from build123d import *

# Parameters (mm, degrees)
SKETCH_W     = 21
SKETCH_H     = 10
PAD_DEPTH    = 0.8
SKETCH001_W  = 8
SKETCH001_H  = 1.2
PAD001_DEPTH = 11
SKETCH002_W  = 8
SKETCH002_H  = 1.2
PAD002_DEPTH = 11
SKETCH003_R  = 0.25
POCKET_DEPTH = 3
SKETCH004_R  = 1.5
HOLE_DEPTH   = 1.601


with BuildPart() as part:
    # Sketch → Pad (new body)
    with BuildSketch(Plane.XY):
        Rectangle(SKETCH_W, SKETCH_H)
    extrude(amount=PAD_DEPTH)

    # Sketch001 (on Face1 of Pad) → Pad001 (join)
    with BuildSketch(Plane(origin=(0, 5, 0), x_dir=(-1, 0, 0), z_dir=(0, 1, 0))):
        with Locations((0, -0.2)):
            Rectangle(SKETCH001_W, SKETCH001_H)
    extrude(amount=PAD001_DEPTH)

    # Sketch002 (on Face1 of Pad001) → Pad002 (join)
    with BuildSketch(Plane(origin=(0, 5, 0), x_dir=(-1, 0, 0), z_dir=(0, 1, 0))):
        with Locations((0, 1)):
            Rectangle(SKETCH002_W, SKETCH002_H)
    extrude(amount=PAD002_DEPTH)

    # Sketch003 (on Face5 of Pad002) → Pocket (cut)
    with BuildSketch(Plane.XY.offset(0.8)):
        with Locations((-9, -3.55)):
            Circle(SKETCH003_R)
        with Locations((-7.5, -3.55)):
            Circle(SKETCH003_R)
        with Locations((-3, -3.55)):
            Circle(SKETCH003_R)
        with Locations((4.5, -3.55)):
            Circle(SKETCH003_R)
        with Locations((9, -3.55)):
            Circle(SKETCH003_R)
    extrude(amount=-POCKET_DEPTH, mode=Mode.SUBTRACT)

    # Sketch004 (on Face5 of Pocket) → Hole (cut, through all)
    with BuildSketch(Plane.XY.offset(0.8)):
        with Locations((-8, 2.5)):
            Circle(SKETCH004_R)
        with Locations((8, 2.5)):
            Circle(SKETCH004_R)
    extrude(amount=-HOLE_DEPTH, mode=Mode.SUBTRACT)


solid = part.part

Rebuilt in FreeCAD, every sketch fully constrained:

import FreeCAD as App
import Part
import Sketcher

V = App.Vector
Q = App.Units.Quantity


def add_polygon(sketch, points):
    """Adds a closed chain of lines whose ends are joined by coincident constraints."""
    first, n = sketch.GeometryCount, len(points)
    for a, b in zip(points, points[1:] + points[:1]):
        sketch.addGeometry(Part.LineSegment(App.Vector(*a, 0), App.Vector(*b, 0)), False)
    for i in range(n):
        sketch.addConstraint(Sketcher.Constraint("Coincident", first + i, 2, first + (i + 1) % n, 1))

doc = App.newDocument("Part")
body = doc.addObject("PartDesign::Body", "Body")

# Sketch on XY plane
sketch1 = body.newObject("Sketcher::SketchObject", "Sketch")
sketch1.AttachmentSupport = (doc.getObject("XY_Plane"), [""])
sketch1.MapMode = "FlatFace"
add_polygon(sketch1, [(-10, 5), (-10, -5), (10, -5), (10, 5)])  # lines 0-3
sketch1.addConstraint([
    Sketcher.Constraint("Vertical", 0),
    Sketcher.Constraint("Horizontal", 1),
    Sketcher.Constraint("Vertical", 2),
    Sketcher.Constraint("Horizontal", 3),
    Sketcher.Constraint("Symmetric", 0, 2, 2, 2, -1, 1),
    Sketcher.Constraint("DistanceX", 1, 1, 1, 2, Q("21 mm")),
    Sketcher.Constraint("DistanceY", 0, 2, 0, 1, Q("10 mm")),
])
pad1 = body.newObject("PartDesign::Pad", "Pad")
pad1.Profile = sketch1
pad1.Length = 0.8

# Sketch on XZ plane
sketch2 = body.newObject("Sketcher::SketchObject", "Sketch001")
sketch2.AttachmentSupport = (doc.getObject("XZ_Plane"), [""])
sketch2.MapMode = "FlatFace"
sketch2.AttachmentOffset = App.Placement(V(0, 0, -5), App.Rotation())
add_polygon(sketch2, [(4, 0.4), (4, -0.8), (-4, -0.8), (-4, 0.4)])  # lines 0-3
sketch2.addConstraint([
    Sketcher.Constraint("Vertical", 0),
    Sketcher.Constraint("Horizontal", 1),
    Sketcher.Constraint("Vertical", 2),
    Sketcher.Constraint("Horizontal", 3),
    Sketcher.Constraint("DistanceX", 1, 2, 1, 1, Q("8 mm")),
    Sketcher.Constraint("DistanceY", 0, 2, 0, 1, Q("1.2 mm")),
    Sketcher.Constraint("DistanceX", -1, 1, 0, 2, Q("4 mm")),
    Sketcher.Constraint("DistanceY", 0, 2, -1, 1, Q("0.8 mm")),
])
pad2 = body.newObject("PartDesign::Pad", "Pad001")
pad2.Profile = sketch2
pad2.Length = 11
pad2.Reversed = True

# Sketch on XZ plane
sketch3 = body.newObject("Sketcher::SketchObject", "Sketch002")
sketch3.AttachmentSupport = (doc.getObject("XZ_Plane"), [""])
sketch3.MapMode = "FlatFace"
sketch3.AttachmentOffset = App.Placement(V(0, 0, -5), App.Rotation())
add_polygon(sketch3, [(4, 1.6), (4, 0.4), (-4, 0.4), (-4, 1.6)])  # lines 0-3
sketch3.addConstraint([
    Sketcher.Constraint("Vertical", 0),
    Sketcher.Constraint("Horizontal", 1),
    Sketcher.Constraint("Vertical", 2),
    Sketcher.Constraint("Horizontal", 3),
    Sketcher.Constraint("DistanceX", 1, 2, 1, 1, Q("8 mm")),
    Sketcher.Constraint("DistanceY", 0, 2, 0, 1, Q("1.2 mm")),
    Sketcher.Constraint("DistanceX", -1, 1, 0, 2, Q("4 mm")),
    Sketcher.Constraint("DistanceY", -1, 1, 0, 2, Q("0.4 mm")),
])
pad3 = body.newObject("PartDesign::Pad", "Pad002")
pad3.Profile = sketch3
pad3.Length = 11
pad3.Reversed = True

# Sketch on XY plane
sketch4 = body.newObject("Sketcher::SketchObject", "Sketch003")
sketch4.AttachmentSupport = (doc.getObject("XY_Plane"), [""])
sketch4.MapMode = "FlatFace"
sketch4.AttachmentOffset = App.Placement(V(0, 0, 0.8), App.Rotation())
sketch4.addGeometry([
    Part.Circle(V(-9, -3.55, 0), V(0, 0, 1), 0.25),  # 0
    Part.Circle(V(-7.5, -3.55, 0), V(0, 0, 1), 0.25),  # 1
    Part.Circle(V(-3, -3.55, 0), V(0, 0, 1), 0.25),  # 2
    Part.Circle(V(4.5, -3.55, 0), V(0, 0, 1), 0.25),  # 3
    Part.Circle(V(9, -3.55, 0), V(0, 0, 1), 0.25),  # 4
], False)
sketch4.addConstraint([
    Sketcher.Constraint("Equal", 0, 1),
    Sketcher.Constraint("Equal", 1, 2),
    Sketcher.Constraint("Equal", 2, 3),
    Sketcher.Constraint("Equal", 3, 4),
    Sketcher.Constraint("Symmetric", 0, 3, 4, 3, -2),
    Sketcher.Constraint("Horizontal", 0, 3, 1, 3),
    Sketcher.Constraint("Horizontal", 1, 3, 2, 3),
    Sketcher.Constraint("Horizontal", 2, 3, 3, 3),
    Sketcher.Constraint("Diameter", 0, Q("0.5 mm")),
    Sketcher.Constraint("DistanceX", 0, 3, -1, 1, Q("9 mm")),
    Sketcher.Constraint("DistanceX", 2, 3, -1, 1, Q("3 mm")),
    Sketcher.Constraint("DistanceX", 1, 3, 3, 3, Q("12 mm")),
    Sketcher.Constraint("DistanceX", 1, 3, -1, 1, Q("7.5 mm")),
    Sketcher.Constraint("DistanceY", 0, 3, -1, 1, Q("3.55 mm")),
])
pocket1 = body.newObject("PartDesign::Pocket", "Pocket")
pocket1.Profile = sketch4
pocket1.Length = 3

# Sketch on XY plane
sketch5 = body.newObject("Sketcher::SketchObject", "Sketch004")
sketch5.AttachmentSupport = (doc.getObject("XY_Plane"), [""])
sketch5.MapMode = "FlatFace"
sketch5.AttachmentOffset = App.Placement(V(0, 0, 0.8), App.Rotation())
sketch5.addGeometry([
    Part.Circle(V(-8, 2.5, 0), V(0, 0, 1), 1.5),
    Part.Circle(V(8, 2.5, 0), V(0, 0, 1), 1.5),
], False)
sketch5.addConstraint([
    Sketcher.Constraint("Equal", 0, 1),
    Sketcher.Constraint("Symmetric", 0, 3, 1, 3, -2),
    Sketcher.Constraint("Diameter", 0, Q("3 mm")),
    Sketcher.Constraint("DistanceX", 0, 3, -1, 1, Q("8 mm")),
    Sketcher.Constraint("DistanceY", -1, 1, 0, 3, Q("2.5 mm")),
])
pocket2 = body.newObject("PartDesign::Pocket", "Pocket001")
pocket2.Profile = sketch5
pocket2.Type = "ThroughAll"

doc.recompute()
